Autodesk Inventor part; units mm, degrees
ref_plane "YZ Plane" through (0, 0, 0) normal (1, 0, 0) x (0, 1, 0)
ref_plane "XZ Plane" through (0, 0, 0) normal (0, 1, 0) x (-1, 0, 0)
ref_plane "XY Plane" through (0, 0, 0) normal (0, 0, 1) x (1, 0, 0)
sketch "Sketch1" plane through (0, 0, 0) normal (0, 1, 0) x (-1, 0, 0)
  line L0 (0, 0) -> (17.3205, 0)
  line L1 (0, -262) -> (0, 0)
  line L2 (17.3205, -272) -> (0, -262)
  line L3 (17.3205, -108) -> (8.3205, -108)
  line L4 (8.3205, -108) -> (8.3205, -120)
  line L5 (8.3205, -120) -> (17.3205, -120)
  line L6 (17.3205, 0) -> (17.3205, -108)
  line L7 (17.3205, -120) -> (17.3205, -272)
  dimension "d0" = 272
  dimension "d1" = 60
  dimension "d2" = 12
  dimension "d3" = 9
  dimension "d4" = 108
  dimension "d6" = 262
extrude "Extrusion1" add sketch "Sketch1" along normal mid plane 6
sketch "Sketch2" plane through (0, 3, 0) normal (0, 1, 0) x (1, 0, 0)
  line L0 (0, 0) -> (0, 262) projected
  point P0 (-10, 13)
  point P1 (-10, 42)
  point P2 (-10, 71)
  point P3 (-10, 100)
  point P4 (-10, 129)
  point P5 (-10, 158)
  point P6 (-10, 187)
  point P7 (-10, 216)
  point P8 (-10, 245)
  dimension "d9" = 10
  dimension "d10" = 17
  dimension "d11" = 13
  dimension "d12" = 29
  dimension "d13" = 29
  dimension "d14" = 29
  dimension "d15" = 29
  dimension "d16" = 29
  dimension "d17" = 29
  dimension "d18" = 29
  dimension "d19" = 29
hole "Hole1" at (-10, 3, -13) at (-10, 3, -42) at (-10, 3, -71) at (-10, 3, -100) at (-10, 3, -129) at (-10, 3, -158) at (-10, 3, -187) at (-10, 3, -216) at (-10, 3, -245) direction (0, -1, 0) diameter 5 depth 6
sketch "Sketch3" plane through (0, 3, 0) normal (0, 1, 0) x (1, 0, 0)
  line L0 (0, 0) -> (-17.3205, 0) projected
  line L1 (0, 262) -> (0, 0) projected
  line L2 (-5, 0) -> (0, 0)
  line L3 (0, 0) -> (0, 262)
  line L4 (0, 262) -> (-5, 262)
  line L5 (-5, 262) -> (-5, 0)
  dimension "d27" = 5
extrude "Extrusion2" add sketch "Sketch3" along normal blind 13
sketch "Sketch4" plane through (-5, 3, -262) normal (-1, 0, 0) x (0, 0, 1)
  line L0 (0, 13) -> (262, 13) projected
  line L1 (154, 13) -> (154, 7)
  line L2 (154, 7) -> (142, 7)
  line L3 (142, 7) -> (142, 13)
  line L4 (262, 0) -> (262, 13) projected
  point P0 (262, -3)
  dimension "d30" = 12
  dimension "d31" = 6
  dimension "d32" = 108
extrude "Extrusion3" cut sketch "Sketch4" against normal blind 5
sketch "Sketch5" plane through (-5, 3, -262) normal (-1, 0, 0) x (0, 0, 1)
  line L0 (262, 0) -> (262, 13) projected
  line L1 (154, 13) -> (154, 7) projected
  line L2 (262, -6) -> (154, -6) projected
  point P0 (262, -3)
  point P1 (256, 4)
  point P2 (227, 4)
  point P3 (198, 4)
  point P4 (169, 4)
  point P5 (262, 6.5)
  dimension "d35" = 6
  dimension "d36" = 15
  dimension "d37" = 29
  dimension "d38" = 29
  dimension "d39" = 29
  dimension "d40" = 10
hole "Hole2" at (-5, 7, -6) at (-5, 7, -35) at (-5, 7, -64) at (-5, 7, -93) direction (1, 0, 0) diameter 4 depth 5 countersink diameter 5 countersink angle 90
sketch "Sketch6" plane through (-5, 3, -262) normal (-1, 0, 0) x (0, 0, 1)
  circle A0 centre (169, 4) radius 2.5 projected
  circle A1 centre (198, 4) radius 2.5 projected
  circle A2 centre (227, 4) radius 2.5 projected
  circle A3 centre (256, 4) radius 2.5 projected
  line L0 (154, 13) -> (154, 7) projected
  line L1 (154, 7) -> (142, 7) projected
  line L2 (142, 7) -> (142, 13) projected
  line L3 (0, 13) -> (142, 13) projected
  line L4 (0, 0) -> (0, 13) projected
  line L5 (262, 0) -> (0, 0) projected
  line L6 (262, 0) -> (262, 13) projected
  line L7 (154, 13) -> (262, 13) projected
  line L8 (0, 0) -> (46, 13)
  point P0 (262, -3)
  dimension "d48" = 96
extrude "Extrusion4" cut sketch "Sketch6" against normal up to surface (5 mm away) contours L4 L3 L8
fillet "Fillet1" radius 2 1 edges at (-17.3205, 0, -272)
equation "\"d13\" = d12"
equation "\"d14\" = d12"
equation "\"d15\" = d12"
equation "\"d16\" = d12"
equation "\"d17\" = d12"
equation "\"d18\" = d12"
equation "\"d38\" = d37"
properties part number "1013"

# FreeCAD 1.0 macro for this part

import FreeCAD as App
import Part
import Sketcher
from FreeCAD import Vector
Q = App.Units.Quantity


def edges_at(feature, points):
    """Names of the edges that pass closest to the given points."""
    edges = feature.Shape.Edges
    near = lambda p: min(range(len(edges)), key=lambda i: edges[i].distToShape(Part.Vertex(*p))[0])
    return sorted({f"Edge{near(p) + 1}" for p in points})

doc = App.newDocument("Part")
body = doc.addObject("PartDesign::Body", "Body")

sketch1 = body.newObject("Sketcher::SketchObject", "Sketch")
sketch1.AttachmentSupport = (doc.getObject("XZ_Plane"), [""])
sketch1.MapMode = "FlatFace"
sketch1.addGeometry(Part.LineSegment(Vector(-17, 0, 0), Vector(0, 0, 0)), False)
sketch1.addGeometry(Part.LineSegment(Vector(0, 0, 0), Vector(0, -262, 0)), False)
sketch1.addGeometry(Part.LineSegment(Vector(0, -262, 0), Vector(-17, -272, 0)), False)
sketch1.addGeometry(Part.LineSegment(Vector(-17, -272, 0), Vector(-17, -120, 0)), False)
sketch1.addGeometry(Part.LineSegment(Vector(-17, -120, 0), Vector(-8, -120, 0)), False)
sketch1.addGeometry(Part.LineSegment(Vector(-8, -120, 0), Vector(-8, -108, 0)), False)
sketch1.addGeometry(Part.LineSegment(Vector(-8, -108, 0), Vector(-17, -108, 0)), False)
sketch1.addGeometry(Part.LineSegment(Vector(-17, -108, 0), Vector(-17, 0, 0)), False)
sketch1.addConstraint(Sketcher.Constraint("Coincident", 0, 2, 1, 1))
sketch1.addConstraint(Sketcher.Constraint("Coincident", 1, 2, 2, 1))
sketch1.addConstraint(Sketcher.Constraint("Coincident", 2, 2, 3, 1))
sketch1.addConstraint(Sketcher.Constraint("Coincident", 3, 2, 4, 1))
sketch1.addConstraint(Sketcher.Constraint("Coincident", 4, 2, 5, 1))
sketch1.addConstraint(Sketcher.Constraint("Coincident", 5, 2, 6, 1))
sketch1.addConstraint(Sketcher.Constraint("Coincident", 6, 2, 7, 1))
sketch1.addConstraint(Sketcher.Constraint("Coincident", 7, 2, 0, 1))
sketch1.addConstraint(Sketcher.Constraint("Horizontal", 0))
sketch1.addConstraint(Sketcher.Constraint("Vertical", 1))
sketch1.addConstraint(Sketcher.Constraint("Vertical", 3))
sketch1.addConstraint(Sketcher.Constraint("Horizontal", 4))
sketch1.addConstraint(Sketcher.Constraint("Vertical", 5))
sketch1.addConstraint(Sketcher.Constraint("Horizontal", 6))
sketch1.addConstraint(Sketcher.Constraint("Vertical", 7))
sketch1.addConstraint(Sketcher.Constraint("Coincident", 0, 2, -1, 1))
sketch1.addConstraint(Sketcher.Constraint("Vertical", 3, 2, 6, 2))
sketch1.addConstraint(Sketcher.Constraint("DistanceX", 4, 1, 4, 2, 9.0))
sketch1.addConstraint(Sketcher.Constraint("DistanceY", 1, 2, 1, 1, 262.0))
sketch1.addConstraint(Sketcher.Constraint("DistanceY", 5, 1, 5, 2, 12.0))
sketch1.addConstraint(Sketcher.Constraint("DistanceY", 7, 1, 7, 2, 108.0))
sketch1.addConstraint(Sketcher.Constraint("DistanceY", 2, 2, -1, 1, 272.0))
sketch1.addConstraint(Sketcher.Constraint("Angle", 2, Q("-150 deg")))
pad1 = body.newObject("PartDesign::Pad", "Pad")
pad1.Profile = sketch1
pad1.Length = 6
pad1.Midplane = True

sketch2 = body.newObject("Sketcher::SketchObject", "Sketch001")
sketch2.AttachmentSupport = (doc.getObject("XZ_Plane"), [""])
sketch2.MapMode = "FlatFace"
sketch2.AttachmentOffset = App.Placement(Vector(0, 0, -3), App.Rotation())
sketch2.addGeometry(Part.Circle(Vector(-10, -13, 0), Vector(0, 0, 1), 2.5), False)
sketch2.addGeometry(Part.Circle(Vector(-10, -42, 0), Vector(0, 0, 1), 2.5), False)
sketch2.addGeometry(Part.Circle(Vector(-10, -71, 0), Vector(0, 0, 1), 2.5), False)
sketch2.addGeometry(Part.Circle(Vector(-10, -100, 0), Vector(0, 0, 1), 2.5), False)
sketch2.addGeometry(Part.Circle(Vector(-10, -129, 0), Vector(0, 0, 1), 2.5), False)
sketch2.addGeometry(Part.Circle(Vector(-10, -158, 0), Vector(0, 0, 1), 2.5), False)
sketch2.addGeometry(Part.Circle(Vector(-10, -187, 0), Vector(0, 0, 1), 2.5), False)
sketch2.addGeometry(Part.Circle(Vector(-10, -216, 0), Vector(0, 0, 1), 2.5), False)
sketch2.addGeometry(Part.Circle(Vector(-10, -245, 0), Vector(0, 0, 1), 2.5), False)
sketch2.addConstraint(Sketcher.Constraint("Equal", 0, 1))
sketch2.addConstraint(Sketcher.Constraint("Equal", 1, 2))
sketch2.addConstraint(Sketcher.Constraint("Equal", 2, 3))
sketch2.addConstraint(Sketcher.Constraint("Equal", 3, 4))
sketch2.addConstraint(Sketcher.Constraint("Equal", 4, 5))
sketch2.addConstraint(Sketcher.Constraint("Equal", 5, 6))
sketch2.addConstraint(Sketcher.Constraint("Equal", 6, 7))
sketch2.addConstraint(Sketcher.Constraint("Equal", 7, 8))
sketch2.addConstraint(Sketcher.Constraint("Vertical", 0, 3, 1, 3))
sketch2.addConstraint(Sketcher.Constraint("Vertical", 1, 3, 2, 3))
sketch2.addConstraint(Sketcher.Constraint("Vertical", 2, 3, 3, 3))
sketch2.addConstraint(Sketcher.Constraint("Vertical", 3, 3, 4, 3))
sketch2.addConstraint(Sketcher.Constraint("Vertical", 4, 3, 5, 3))
sketch2.addConstraint(Sketcher.Constraint("Vertical", 5, 3, 6, 3))
sketch2.addConstraint(Sketcher.Constraint("Vertical", 6, 3, 7, 3))
sketch2.addConstraint(Sketcher.Constraint("Vertical", 7, 3, 8, 3))
sketch2.addConstraint(Sketcher.Constraint("Diameter", 0, 5.0))
sketch2.addConstraint(Sketcher.Constraint("DistanceX", 0, 3, -1, 1, 10.0))
sketch2.addConstraint(Sketcher.Constraint("DistanceY", 0, 3, -1, 1, 13.0))
sketch2.addConstraint(Sketcher.Constraint("DistanceY", 1, 3, -1, 1, 42.0))
sketch2.addConstraint(Sketcher.Constraint("DistanceY", 2, 3, -1, 1, 71.0))
sketch2.addConstraint(Sketcher.Constraint("DistanceY", 3, 3, -1, 1, 100.0))
sketch2.addConstraint(Sketcher.Constraint("DistanceY", 4, 3, -1, 1, 129.0))
sketch2.addConstraint(Sketcher.Constraint("DistanceY", 5, 3, -1, 1, 158.0))
sketch2.addConstraint(Sketcher.Constraint("DistanceY", 6, 3, -1, 1, 187.0))
sketch2.addConstraint(Sketcher.Constraint("DistanceY", 7, 3, -1, 1, 216.0))
sketch2.addConstraint(Sketcher.Constraint("DistanceY", 8, 3, -1, 1, 245.0))
doc.recompute()
hole = body.newObject("PartDesign::Hole", "Hole")
hole.Profile = sketch2
hole.ThreadType = "None"
hole.Diameter = 5
hole.DepthType = "Dimension"
hole.Depth = 6
hole.DrillPoint = "Flat"
hole.Reversed = True

sketch3 = body.newObject("Sketcher::SketchObject", "Sketch002")
sketch3.AttachmentSupport = (doc.getObject("XZ_Plane"), [""])
sketch3.MapMode = "FlatFace"
sketch3.AttachmentOffset = App.Placement(Vector(0, 0, -3), App.Rotation())
sketch3.addGeometry(Part.LineSegment(Vector(-5, 0, 0), Vector(0, 0, 0)), False)
sketch3.addGeometry(Part.LineSegment(Vector(0, 0, 0), Vector(0, -262, 0)), False)
sketch3.addGeometry(Part.LineSegment(Vector(0, -262, 0), Vector(-5, -262, 0)), False)
sketch3.addGeometry(Part.LineSegment(Vector(-5, -262, 0), Vector(-5, 0, 0)), False)
sketch3.addConstraint(Sketcher.Constraint("Coincident", 0, 2, 1, 1))
sketch3.addConstraint(Sketcher.Constraint("Coincident", 1, 2, 2, 1))
sketch3.addConstraint(Sketcher.Constraint("Coincident", 2, 2, 3, 1))
sketch3.addConstraint(Sketcher.Constraint("Coincident", 3, 2, 0, 1))
sketch3.addConstraint(Sketcher.Constraint("Horizontal", 0))
sketch3.addConstraint(Sketcher.Constraint("Vertical", 1))
sketch3.addConstraint(Sketcher.Constraint("Horizontal", 2))
sketch3.addConstraint(Sketcher.Constraint("Vertical", 3))
sketch3.addConstraint(Sketcher.Constraint("Coincident", 0, 2, -1, 1))
sketch3.addConstraint(Sketcher.Constraint("DistanceX", 0, 1, 0, 2, 5.0))
sketch3.addConstraint(Sketcher.Constraint("DistanceY", 1, 2, 1, 1, 262.0))
pad2 = body.newObject("PartDesign::Pad", "Pad001")
pad2.Profile = sketch3
pad2.Length = 13
pad2.Reversed = True

sketch4 = body.newObject("Sketcher::SketchObject", "Sketch003")
sketch4.AttachmentSupport = (doc.getObject("YZ_Plane"), [""])
sketch4.MapMode = "FlatFace"
sketch4.AttachmentOffset = App.Placement(Vector(0, 0, -5), App.Rotation())
sketch4.addGeometry(Part.LineSegment(Vector(16, -108, 0), Vector(16, -120, 0)), False)
sketch4.addGeometry(Part.LineSegment(Vector(16, -120, 0), Vector(10, -120, 0)), False)
sketch4.addGeometry(Part.LineSegment(Vector(10, -120, 0), Vector(10, -108, 0)), False)
sketch4.addGeometry(Part.LineSegment(Vector(10, -108, 0), Vector(16, -108, 0)), False)
sketch4.addConstraint(Sketcher.Constraint("Coincident", 0, 2, 1, 1))
sketch4.addConstraint(Sketcher.Constraint("Coincident", 1, 2, 2, 1))
sketch4.addConstraint(Sketcher.Constraint("Coincident", 2, 2, 3, 1))
sketch4.addConstraint(Sketcher.Constraint("Coincident", 3, 2, 0, 1))
sketch4.addConstraint(Sketcher.Constraint("Vertical", 0))
sketch4.addConstraint(Sketcher.Constraint("Horizontal", 1))
sketch4.addConstraint(Sketcher.Constraint("Vertical", 2))
sketch4.addConstraint(Sketcher.Constraint("Horizontal", 3))
sketch4.addConstraint(Sketcher.Constraint("DistanceX", 1, 2, 1, 1, 6.0))
sketch4.addConstraint(Sketcher.Constraint("DistanceY", 0, 2, 0, 1, 12.0))
sketch4.addConstraint(Sketcher.Constraint("DistanceY", 2, 2, -1, 1, 108.0))
sketch4.addConstraint(Sketcher.Constraint("DistanceX", -1, 1, 0, 2, 16.0))
pocket1 = body.newObject("PartDesign::Pocket", "Pocket")
pocket1.Profile = sketch4
pocket1.Length = 5
pocket1.Reversed = True

sketch5 = body.newObject("Sketcher::SketchObject", "Sketch004")
sketch5.AttachmentSupport = (doc.getObject("YZ_Plane"), [""])
sketch5.MapMode = "FlatFace"
sketch5.AttachmentOffset = App.Placement(Vector(0, 0, -5), App.Rotation())
sketch5.addGeometry(Part.Circle(Vector(7, -6, 0), Vector(0, 0, 1), 2), False)
sketch5.addGeometry(Part.Circle(Vector(7, -35, 0), Vector(0, 0, 1), 2), False)
sketch5.addGeometry(Part.Circle(Vector(7, -64, 0), Vector(0, 0, 1), 2), False)
sketch5.addGeometry(Part.Circle(Vector(7, -93, 0), Vector(0, 0, 1), 2), False)
sketch5.addConstraint(Sketcher.Constraint("Equal", 0, 1))
sketch5.addConstraint(Sketcher.Constraint("Equal", 1, 2))
sketch5.addConstraint(Sketcher.Constraint("Equal", 2, 3))
sketch5.addConstraint(Sketcher.Constraint("Vertical", 0, 3, 1, 3))
sketch5.addConstraint(Sketcher.Constraint("Vertical", 1, 3, 2, 3))
sketch5.addConstraint(Sketcher.Constraint("Vertical", 2, 3, 3, 3))
sketch5.addConstraint(Sketcher.Constraint("Diameter", 0, 4.0))
sketch5.addConstraint(Sketcher.Constraint("DistanceX", -1, 1, 0, 3, 7.0))
sketch5.addConstraint(Sketcher.Constraint("DistanceY", 0, 3, -1, 1, 6.0))
sketch5.addConstraint(Sketcher.Constraint("DistanceY", 1, 3, -1, 1, 35.0))
sketch5.addConstraint(Sketcher.Constraint("DistanceY", 2, 3, -1, 1, 64.0))
sketch5.addConstraint(Sketcher.Constraint("DistanceY", 3, 3, -1, 1, 93.0))
doc.recompute()
hole2 = body.newObject("PartDesign::Hole", "Hole001")
hole2.Profile = sketch5
hole2.ThreadType = "None"
hole2.Diameter = 4
hole2.DepthType = "Dimension"
hole2.Depth = 5
hole2.DrillPoint = "Flat"
hole2.HoleCutType = "Countersink"
hole2.HoleCutDiameter = 5
hole2.HoleCutCountersinkAngle = 90
hole2.Reversed = True

sketch6 = body.newObject("Sketcher::SketchObject", "Sketch005")
sketch6.AttachmentSupport = (doc.getObject("YZ_Plane"), [""])
sketch6.MapMode = "FlatFace"
sketch6.AttachmentOffset = App.Placement(Vector(0, 0, -5), App.Rotation())
sketch6.addGeometry(Part.LineSegment(Vector(16, -262, 0), Vector(3, -262, 0)), False)
sketch6.addGeometry(Part.LineSegment(Vector(3, -262, 0), Vector(16, -216, 0)), False)
sketch6.addGeometry(Part.LineSegment(Vector(16, -216, 0), Vector(16, -262, 0)), False)
sketch6.addConstraint(Sketcher.Constraint("Coincident", 0, 2, 1, 1))
sketch6.addConstraint(Sketcher.Constraint("Coincident", 1, 2, 2, 1))
sketch6.addConstraint(Sketcher.Constraint("Coincident", 2, 2, 0, 1))
sketch6.addConstraint(Sketcher.Constraint("Horizontal", 0))
sketch6.addConstraint(Sketcher.Constraint("Vertical", 2))
sketch6.addConstraint(Sketcher.Constraint("DistanceX", 0, 2, 0, 1, 13.0))
sketch6.addConstraint(Sketcher.Constraint("DistanceY", 2, 2, 2, 1, 46.0))
sketch6.addConstraint(Sketcher.Constraint("DistanceX", -1, 1, 0, 2, 3.0))
sketch6.addConstraint(Sketcher.Constraint("DistanceY", 0, 2, -1, 1, 262.0))
pocket2 = body.newObject("PartDesign::Pocket", "Pocket001")
pocket2.Profile = sketch6
pocket2.Length = 5
pocket2.Reversed = True
doc.recompute()

fillet = body.newObject("PartDesign::Fillet", "Fillet")
fillet.Base = (pocket2, edges_at(pocket2, [(-17.32, 0, -272)]))
fillet.Radius = 2

doc.recompute()
